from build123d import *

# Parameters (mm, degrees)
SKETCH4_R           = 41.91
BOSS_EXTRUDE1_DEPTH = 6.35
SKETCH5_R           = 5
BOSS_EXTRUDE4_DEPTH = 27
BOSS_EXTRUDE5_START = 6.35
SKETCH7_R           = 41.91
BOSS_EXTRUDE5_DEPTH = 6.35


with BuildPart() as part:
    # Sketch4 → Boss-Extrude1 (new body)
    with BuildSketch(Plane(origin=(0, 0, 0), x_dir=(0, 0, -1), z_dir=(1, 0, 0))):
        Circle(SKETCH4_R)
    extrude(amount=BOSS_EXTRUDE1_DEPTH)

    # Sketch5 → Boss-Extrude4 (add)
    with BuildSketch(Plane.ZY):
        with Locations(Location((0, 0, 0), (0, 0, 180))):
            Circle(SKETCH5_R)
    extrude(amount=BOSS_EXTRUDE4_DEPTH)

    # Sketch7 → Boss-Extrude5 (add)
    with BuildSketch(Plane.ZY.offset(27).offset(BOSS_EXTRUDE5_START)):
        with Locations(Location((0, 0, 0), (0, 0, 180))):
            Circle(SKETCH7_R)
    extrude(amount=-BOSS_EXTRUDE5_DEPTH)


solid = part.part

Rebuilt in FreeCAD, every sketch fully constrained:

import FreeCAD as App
import Part
import Sketcher

V = App.Vector
Q = App.Units.Quantity

doc = App.newDocument("Part")
params = doc.addObject("Spreadsheet::Sheet", "Params")
for row, (alias, value) in enumerate([
    ("sketch1_diameter", "83.82 mm"),
    ("pad1_length", "6.35 mm"),
    ("sketch2_diameter", "10 mm"),
    ("pad2_length", "27 mm"),
    ("sketch3_diameter", "83.82 mm"),
    ("pad3_length", "6.35 mm"),
], start=1):
    params.set(f"A{row}", alias)
    params.set(f"B{row}", "=" + value)
    params.setAlias(f"B{row}", alias)

body = doc.addObject("PartDesign::Body", "Body")

# Sketch on YZ plane
sketch1 = body.newObject("Sketcher::SketchObject", "Sketch")
sketch1.AttachmentSupport = (doc.getObject("YZ_Plane"), [""])
sketch1.MapMode = "FlatFace"
sketch1.addGeometry(Part.Circle(V(0, 0, 0), V(0, 0, 1), 42), False)
sketch1.addConstraint(Sketcher.Constraint("Coincident", 0, 3, -1, 1))
sketch1.addConstraint(Sketcher.Constraint("Diameter", 0, Q("83.82 mm")))
sketch1.setExpression("Constraints[1]", "Params.sketch1_diameter")
pad1 = body.newObject("PartDesign::Pad", "Pad")
pad1.Profile = sketch1
pad1.setExpression("Length", "Params.pad1_length")

# Sketch on YZ plane
sketch2 = body.newObject("Sketcher::SketchObject", "Sketch001")
sketch2.AttachmentSupport = (doc.getObject("YZ_Plane"), [""])
sketch2.MapMode = "FlatFace"
sketch2.addGeometry(Part.Circle(V(0, 0, 0), V(0, 0, 1), 5), False)
sketch2.addConstraint(Sketcher.Constraint("Coincident", 0, 3, -1, 1))
sketch2.addConstraint(Sketcher.Constraint("Diameter", 0, Q("10 mm")))
sketch2.setExpression("Constraints[1]", "Params.sketch2_diameter")
pad2 = body.newObject("PartDesign::Pad", "Pad001")
pad2.Profile = sketch2
pad2.setExpression("Length", "Params.pad2_length")
pad2.Reversed = True

# Sketch on YZ plane
sketch3 = body.newObject("Sketcher::SketchObject", "Sketch002")
sketch3.AttachmentSupport = (doc.getObject("YZ_Plane"), [""])
sketch3.MapMode = "FlatFace"
sketch3.AttachmentOffset = App.Placement(V(0, 0, -33.35), App.Rotation())
sketch3.addGeometry(Part.Circle(V(0, 0, 0), V(0, 0, 1), 42), False)
sketch3.addConstraint(Sketcher.Constraint("Coincident", 0, 3, -1, 1))
sketch3.addConstraint(Sketcher.Constraint("Diameter", 0, Q("83.82 mm")))
sketch3.setExpression("Constraints[1]", "Params.sketch3_diameter")
pad3 = body.newObject("PartDesign::Pad", "Pad002")
pad3.Profile = sketch3
pad3.setExpression("Length", "Params.pad3_length")

doc.recompute()
